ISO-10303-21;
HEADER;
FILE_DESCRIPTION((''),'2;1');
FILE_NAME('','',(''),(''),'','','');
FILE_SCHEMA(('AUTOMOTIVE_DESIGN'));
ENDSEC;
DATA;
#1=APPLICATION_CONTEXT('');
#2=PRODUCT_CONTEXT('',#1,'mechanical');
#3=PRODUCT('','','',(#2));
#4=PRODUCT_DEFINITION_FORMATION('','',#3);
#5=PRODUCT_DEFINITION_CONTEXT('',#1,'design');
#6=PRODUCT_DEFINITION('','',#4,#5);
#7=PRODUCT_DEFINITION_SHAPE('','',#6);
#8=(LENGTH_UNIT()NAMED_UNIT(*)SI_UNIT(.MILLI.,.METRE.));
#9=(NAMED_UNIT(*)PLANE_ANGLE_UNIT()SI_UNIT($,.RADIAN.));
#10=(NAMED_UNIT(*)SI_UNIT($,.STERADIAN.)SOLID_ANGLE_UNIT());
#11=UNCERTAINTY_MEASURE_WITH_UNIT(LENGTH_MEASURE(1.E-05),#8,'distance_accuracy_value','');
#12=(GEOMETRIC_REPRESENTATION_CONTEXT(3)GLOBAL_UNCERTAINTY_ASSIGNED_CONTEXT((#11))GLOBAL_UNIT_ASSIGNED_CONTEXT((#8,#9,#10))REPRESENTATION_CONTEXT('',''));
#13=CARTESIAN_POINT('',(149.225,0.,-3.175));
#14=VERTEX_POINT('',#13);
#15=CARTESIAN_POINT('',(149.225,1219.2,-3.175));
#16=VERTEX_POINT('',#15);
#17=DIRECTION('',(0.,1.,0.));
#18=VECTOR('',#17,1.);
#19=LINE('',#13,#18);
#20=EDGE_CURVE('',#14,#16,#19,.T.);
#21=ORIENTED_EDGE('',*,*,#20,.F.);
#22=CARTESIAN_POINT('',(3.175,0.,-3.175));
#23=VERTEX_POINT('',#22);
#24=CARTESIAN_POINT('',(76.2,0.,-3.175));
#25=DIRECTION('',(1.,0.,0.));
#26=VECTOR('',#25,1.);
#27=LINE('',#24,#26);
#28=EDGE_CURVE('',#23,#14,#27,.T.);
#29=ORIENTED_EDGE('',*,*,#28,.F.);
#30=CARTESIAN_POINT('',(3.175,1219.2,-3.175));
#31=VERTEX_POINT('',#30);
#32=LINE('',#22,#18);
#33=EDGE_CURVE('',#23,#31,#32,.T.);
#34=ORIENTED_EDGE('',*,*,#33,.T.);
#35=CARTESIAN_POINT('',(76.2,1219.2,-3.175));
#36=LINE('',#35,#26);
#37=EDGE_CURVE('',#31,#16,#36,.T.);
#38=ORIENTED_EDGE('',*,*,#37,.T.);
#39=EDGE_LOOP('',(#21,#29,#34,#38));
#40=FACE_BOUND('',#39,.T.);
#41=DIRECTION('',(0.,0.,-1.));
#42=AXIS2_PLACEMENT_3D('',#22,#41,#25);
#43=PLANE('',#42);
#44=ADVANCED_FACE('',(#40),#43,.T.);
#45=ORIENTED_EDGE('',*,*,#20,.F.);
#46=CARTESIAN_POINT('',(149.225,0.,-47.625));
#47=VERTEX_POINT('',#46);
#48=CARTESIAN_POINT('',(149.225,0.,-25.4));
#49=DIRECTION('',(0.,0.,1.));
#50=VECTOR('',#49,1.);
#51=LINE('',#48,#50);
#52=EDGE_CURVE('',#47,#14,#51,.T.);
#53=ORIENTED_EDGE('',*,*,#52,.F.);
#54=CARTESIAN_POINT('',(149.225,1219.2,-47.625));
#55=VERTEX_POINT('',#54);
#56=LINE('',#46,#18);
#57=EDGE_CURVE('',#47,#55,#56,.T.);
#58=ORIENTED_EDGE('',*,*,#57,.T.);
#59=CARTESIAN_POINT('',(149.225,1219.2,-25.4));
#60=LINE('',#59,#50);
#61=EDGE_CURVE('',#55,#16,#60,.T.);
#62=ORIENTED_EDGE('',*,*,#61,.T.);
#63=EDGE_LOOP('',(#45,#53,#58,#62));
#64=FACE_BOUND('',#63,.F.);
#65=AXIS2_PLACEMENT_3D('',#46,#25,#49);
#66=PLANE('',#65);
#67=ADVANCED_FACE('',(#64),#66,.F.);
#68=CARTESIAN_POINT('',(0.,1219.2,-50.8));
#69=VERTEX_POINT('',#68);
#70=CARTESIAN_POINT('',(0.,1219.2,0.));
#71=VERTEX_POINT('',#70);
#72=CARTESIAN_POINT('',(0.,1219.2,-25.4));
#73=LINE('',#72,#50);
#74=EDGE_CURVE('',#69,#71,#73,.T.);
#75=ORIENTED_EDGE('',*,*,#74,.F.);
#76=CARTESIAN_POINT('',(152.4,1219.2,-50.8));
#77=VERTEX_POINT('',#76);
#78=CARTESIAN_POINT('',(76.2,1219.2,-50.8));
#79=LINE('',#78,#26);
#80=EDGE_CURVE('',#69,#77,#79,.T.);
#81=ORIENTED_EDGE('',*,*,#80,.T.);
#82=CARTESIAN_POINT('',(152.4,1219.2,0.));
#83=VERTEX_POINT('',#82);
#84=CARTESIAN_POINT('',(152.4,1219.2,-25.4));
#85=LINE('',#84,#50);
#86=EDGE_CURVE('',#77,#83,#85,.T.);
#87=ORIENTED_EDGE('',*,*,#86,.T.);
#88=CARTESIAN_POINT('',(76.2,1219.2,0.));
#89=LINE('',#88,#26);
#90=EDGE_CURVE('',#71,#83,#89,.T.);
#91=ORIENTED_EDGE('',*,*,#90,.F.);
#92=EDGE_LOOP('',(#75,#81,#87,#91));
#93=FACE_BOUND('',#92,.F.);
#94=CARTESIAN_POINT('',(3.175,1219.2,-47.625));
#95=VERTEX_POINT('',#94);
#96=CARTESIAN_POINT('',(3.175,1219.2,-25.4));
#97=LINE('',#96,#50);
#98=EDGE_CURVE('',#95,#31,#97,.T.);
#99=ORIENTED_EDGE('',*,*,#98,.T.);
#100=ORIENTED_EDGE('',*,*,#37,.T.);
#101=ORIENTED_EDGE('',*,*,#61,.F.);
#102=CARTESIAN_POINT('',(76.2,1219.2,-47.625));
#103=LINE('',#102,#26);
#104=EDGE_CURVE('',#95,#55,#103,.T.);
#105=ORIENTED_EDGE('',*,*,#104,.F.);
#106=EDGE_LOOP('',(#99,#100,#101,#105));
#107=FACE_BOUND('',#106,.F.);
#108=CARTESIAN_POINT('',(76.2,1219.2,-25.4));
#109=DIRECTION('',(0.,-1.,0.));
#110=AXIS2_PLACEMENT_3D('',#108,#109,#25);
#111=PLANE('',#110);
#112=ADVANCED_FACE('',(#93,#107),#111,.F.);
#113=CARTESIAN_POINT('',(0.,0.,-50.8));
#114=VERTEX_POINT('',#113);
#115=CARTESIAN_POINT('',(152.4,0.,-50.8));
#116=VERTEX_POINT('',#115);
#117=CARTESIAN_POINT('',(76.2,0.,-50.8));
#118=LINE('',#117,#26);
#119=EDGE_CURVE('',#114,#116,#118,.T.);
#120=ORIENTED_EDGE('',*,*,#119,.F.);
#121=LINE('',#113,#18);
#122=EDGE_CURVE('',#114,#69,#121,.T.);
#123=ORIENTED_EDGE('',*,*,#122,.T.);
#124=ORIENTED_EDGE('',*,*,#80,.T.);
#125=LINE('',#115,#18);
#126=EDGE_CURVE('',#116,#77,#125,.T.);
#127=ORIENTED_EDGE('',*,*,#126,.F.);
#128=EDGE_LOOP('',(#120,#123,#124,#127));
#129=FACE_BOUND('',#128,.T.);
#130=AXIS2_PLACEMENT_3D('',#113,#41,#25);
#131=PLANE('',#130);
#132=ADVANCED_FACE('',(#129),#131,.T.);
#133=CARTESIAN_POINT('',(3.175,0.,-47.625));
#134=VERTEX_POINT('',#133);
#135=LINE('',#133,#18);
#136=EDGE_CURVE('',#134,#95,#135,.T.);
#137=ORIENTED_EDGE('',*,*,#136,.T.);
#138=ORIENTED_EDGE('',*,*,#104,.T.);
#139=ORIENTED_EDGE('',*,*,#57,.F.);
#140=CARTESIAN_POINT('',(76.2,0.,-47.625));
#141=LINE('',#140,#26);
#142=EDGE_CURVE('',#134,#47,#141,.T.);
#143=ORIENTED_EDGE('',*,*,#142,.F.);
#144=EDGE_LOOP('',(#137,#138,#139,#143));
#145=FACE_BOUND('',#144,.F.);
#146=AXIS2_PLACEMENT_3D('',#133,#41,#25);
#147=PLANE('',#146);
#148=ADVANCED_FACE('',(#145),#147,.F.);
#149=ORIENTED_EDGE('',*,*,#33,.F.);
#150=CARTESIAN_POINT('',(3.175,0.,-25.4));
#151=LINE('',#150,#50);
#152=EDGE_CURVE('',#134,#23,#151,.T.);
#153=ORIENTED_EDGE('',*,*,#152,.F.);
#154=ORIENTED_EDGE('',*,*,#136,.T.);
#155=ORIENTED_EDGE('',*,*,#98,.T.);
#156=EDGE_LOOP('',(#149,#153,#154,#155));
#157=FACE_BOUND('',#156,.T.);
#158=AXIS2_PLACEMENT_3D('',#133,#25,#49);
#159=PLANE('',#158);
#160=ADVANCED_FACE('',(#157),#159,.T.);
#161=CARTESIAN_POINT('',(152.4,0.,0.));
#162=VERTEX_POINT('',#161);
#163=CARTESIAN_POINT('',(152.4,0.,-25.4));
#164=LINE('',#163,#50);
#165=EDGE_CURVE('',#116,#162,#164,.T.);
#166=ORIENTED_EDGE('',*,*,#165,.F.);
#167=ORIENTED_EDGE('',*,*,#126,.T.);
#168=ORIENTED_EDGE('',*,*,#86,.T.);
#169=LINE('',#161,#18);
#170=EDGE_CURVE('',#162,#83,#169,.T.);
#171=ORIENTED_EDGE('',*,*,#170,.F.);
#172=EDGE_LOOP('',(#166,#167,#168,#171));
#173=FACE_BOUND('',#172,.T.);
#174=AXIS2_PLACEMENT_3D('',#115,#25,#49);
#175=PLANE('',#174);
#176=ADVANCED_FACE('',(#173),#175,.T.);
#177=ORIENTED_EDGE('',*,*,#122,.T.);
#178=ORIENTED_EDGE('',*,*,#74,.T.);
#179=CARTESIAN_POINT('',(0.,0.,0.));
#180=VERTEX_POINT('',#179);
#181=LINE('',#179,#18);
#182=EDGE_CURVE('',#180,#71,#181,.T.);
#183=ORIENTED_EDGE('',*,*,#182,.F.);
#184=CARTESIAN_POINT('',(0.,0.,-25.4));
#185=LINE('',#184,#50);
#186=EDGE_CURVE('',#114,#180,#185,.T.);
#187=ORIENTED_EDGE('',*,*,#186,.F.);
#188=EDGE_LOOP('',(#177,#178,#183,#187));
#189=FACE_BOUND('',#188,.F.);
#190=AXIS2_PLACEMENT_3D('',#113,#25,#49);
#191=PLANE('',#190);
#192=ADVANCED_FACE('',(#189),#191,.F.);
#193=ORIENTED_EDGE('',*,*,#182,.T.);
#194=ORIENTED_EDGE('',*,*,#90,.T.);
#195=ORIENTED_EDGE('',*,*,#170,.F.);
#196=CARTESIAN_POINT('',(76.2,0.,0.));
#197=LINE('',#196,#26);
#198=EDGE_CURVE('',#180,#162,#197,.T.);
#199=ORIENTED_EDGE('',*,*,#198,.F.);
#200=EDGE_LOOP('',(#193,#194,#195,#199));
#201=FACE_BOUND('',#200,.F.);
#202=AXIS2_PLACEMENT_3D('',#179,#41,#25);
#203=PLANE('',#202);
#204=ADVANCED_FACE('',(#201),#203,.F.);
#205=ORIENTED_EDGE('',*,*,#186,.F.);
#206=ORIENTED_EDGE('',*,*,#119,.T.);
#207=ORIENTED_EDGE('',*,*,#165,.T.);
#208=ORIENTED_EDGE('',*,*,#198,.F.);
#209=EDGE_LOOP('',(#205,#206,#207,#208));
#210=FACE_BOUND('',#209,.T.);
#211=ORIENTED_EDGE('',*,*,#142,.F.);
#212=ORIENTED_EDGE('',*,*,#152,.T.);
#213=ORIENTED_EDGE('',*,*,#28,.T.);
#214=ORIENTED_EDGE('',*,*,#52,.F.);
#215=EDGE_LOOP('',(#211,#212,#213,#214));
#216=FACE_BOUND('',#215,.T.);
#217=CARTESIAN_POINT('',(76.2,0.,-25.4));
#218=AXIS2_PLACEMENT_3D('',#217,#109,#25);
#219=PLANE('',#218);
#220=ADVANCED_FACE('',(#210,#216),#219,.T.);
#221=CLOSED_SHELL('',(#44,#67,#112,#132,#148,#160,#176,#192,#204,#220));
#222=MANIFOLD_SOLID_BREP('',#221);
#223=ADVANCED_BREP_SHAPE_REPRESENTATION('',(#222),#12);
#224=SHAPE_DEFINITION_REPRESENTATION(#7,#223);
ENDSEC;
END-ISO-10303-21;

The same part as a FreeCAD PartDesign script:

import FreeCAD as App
import Part
import Sketcher
Q = App.Units.Quantity


def add_polygon(sketch, points):
    """Adds a closed chain of lines whose ends are joined by coincident constraints."""
    first, n = sketch.GeometryCount, len(points)
    for a, b in zip(points, points[1:] + points[:1]):
        sketch.addGeometry(Part.LineSegment(App.Vector(*a, 0), App.Vector(*b, 0)), False)
    for i in range(n):
        sketch.addConstraint(Sketcher.Constraint("Coincident", first + i, 2, first + (i + 1) % n, 1))

doc = App.newDocument("Part")
body = doc.addObject("PartDesign::Body", "Body")

sketch1 = body.newObject("Sketcher::SketchObject", "Sketch")
sketch1.AttachmentSupport = (doc.getObject("XZ_Plane"), [""])
sketch1.MapMode = "FlatFace"
add_polygon(sketch1, [(0, 0), (0, -50.8), (152.4, -50.8), (152.4, 0)])
add_polygon(sketch1, [(149.225, -47.625), (3.175, -47.625), (3.175, -3.175), (149.225, -3.175)])
sketch1.addConstraint(Sketcher.Constraint("Vertical", 0))
sketch1.addConstraint(Sketcher.Constraint("Horizontal", 1))
sketch1.addConstraint(Sketcher.Constraint("Vertical", 2))
sketch1.addConstraint(Sketcher.Constraint("Horizontal", 3))
sketch1.addConstraint(Sketcher.Constraint("Horizontal", 4))
sketch1.addConstraint(Sketcher.Constraint("Vertical", 5))
sketch1.addConstraint(Sketcher.Constraint("Horizontal", 6))
sketch1.addConstraint(Sketcher.Constraint("Vertical", 7))
sketch1.addConstraint(Sketcher.Constraint("Coincident", 3, 2, -1, 1))
sketch1.addConstraint(Sketcher.Constraint("DistanceX", 1, 1, 1, 2, Q("6 in")))
sketch1.addConstraint(Sketcher.Constraint("DistanceY", 0, 2, 0, 1, Q("2 in")))
sketch1.addConstraint(Sketcher.Constraint("DistanceX", 4, 2, 4, 1, Q("5.75 in")))
sketch1.addConstraint(Sketcher.Constraint("DistanceY", 5, 1, 5, 2, Q("1.75 in")))
sketch1.addConstraint(Sketcher.Constraint("DistanceX", -1, 1, 4, 2, Q("0.125 in")))
sketch1.addConstraint(Sketcher.Constraint("DistanceY", 4, 2, -1, 1, Q("1.875 in")))
pad1 = body.newObject("PartDesign::Pad", "Pad")
pad1.Profile = sketch1
pad1.Length = Q("48 in")
pad1.Reversed = True

doc.recompute()
